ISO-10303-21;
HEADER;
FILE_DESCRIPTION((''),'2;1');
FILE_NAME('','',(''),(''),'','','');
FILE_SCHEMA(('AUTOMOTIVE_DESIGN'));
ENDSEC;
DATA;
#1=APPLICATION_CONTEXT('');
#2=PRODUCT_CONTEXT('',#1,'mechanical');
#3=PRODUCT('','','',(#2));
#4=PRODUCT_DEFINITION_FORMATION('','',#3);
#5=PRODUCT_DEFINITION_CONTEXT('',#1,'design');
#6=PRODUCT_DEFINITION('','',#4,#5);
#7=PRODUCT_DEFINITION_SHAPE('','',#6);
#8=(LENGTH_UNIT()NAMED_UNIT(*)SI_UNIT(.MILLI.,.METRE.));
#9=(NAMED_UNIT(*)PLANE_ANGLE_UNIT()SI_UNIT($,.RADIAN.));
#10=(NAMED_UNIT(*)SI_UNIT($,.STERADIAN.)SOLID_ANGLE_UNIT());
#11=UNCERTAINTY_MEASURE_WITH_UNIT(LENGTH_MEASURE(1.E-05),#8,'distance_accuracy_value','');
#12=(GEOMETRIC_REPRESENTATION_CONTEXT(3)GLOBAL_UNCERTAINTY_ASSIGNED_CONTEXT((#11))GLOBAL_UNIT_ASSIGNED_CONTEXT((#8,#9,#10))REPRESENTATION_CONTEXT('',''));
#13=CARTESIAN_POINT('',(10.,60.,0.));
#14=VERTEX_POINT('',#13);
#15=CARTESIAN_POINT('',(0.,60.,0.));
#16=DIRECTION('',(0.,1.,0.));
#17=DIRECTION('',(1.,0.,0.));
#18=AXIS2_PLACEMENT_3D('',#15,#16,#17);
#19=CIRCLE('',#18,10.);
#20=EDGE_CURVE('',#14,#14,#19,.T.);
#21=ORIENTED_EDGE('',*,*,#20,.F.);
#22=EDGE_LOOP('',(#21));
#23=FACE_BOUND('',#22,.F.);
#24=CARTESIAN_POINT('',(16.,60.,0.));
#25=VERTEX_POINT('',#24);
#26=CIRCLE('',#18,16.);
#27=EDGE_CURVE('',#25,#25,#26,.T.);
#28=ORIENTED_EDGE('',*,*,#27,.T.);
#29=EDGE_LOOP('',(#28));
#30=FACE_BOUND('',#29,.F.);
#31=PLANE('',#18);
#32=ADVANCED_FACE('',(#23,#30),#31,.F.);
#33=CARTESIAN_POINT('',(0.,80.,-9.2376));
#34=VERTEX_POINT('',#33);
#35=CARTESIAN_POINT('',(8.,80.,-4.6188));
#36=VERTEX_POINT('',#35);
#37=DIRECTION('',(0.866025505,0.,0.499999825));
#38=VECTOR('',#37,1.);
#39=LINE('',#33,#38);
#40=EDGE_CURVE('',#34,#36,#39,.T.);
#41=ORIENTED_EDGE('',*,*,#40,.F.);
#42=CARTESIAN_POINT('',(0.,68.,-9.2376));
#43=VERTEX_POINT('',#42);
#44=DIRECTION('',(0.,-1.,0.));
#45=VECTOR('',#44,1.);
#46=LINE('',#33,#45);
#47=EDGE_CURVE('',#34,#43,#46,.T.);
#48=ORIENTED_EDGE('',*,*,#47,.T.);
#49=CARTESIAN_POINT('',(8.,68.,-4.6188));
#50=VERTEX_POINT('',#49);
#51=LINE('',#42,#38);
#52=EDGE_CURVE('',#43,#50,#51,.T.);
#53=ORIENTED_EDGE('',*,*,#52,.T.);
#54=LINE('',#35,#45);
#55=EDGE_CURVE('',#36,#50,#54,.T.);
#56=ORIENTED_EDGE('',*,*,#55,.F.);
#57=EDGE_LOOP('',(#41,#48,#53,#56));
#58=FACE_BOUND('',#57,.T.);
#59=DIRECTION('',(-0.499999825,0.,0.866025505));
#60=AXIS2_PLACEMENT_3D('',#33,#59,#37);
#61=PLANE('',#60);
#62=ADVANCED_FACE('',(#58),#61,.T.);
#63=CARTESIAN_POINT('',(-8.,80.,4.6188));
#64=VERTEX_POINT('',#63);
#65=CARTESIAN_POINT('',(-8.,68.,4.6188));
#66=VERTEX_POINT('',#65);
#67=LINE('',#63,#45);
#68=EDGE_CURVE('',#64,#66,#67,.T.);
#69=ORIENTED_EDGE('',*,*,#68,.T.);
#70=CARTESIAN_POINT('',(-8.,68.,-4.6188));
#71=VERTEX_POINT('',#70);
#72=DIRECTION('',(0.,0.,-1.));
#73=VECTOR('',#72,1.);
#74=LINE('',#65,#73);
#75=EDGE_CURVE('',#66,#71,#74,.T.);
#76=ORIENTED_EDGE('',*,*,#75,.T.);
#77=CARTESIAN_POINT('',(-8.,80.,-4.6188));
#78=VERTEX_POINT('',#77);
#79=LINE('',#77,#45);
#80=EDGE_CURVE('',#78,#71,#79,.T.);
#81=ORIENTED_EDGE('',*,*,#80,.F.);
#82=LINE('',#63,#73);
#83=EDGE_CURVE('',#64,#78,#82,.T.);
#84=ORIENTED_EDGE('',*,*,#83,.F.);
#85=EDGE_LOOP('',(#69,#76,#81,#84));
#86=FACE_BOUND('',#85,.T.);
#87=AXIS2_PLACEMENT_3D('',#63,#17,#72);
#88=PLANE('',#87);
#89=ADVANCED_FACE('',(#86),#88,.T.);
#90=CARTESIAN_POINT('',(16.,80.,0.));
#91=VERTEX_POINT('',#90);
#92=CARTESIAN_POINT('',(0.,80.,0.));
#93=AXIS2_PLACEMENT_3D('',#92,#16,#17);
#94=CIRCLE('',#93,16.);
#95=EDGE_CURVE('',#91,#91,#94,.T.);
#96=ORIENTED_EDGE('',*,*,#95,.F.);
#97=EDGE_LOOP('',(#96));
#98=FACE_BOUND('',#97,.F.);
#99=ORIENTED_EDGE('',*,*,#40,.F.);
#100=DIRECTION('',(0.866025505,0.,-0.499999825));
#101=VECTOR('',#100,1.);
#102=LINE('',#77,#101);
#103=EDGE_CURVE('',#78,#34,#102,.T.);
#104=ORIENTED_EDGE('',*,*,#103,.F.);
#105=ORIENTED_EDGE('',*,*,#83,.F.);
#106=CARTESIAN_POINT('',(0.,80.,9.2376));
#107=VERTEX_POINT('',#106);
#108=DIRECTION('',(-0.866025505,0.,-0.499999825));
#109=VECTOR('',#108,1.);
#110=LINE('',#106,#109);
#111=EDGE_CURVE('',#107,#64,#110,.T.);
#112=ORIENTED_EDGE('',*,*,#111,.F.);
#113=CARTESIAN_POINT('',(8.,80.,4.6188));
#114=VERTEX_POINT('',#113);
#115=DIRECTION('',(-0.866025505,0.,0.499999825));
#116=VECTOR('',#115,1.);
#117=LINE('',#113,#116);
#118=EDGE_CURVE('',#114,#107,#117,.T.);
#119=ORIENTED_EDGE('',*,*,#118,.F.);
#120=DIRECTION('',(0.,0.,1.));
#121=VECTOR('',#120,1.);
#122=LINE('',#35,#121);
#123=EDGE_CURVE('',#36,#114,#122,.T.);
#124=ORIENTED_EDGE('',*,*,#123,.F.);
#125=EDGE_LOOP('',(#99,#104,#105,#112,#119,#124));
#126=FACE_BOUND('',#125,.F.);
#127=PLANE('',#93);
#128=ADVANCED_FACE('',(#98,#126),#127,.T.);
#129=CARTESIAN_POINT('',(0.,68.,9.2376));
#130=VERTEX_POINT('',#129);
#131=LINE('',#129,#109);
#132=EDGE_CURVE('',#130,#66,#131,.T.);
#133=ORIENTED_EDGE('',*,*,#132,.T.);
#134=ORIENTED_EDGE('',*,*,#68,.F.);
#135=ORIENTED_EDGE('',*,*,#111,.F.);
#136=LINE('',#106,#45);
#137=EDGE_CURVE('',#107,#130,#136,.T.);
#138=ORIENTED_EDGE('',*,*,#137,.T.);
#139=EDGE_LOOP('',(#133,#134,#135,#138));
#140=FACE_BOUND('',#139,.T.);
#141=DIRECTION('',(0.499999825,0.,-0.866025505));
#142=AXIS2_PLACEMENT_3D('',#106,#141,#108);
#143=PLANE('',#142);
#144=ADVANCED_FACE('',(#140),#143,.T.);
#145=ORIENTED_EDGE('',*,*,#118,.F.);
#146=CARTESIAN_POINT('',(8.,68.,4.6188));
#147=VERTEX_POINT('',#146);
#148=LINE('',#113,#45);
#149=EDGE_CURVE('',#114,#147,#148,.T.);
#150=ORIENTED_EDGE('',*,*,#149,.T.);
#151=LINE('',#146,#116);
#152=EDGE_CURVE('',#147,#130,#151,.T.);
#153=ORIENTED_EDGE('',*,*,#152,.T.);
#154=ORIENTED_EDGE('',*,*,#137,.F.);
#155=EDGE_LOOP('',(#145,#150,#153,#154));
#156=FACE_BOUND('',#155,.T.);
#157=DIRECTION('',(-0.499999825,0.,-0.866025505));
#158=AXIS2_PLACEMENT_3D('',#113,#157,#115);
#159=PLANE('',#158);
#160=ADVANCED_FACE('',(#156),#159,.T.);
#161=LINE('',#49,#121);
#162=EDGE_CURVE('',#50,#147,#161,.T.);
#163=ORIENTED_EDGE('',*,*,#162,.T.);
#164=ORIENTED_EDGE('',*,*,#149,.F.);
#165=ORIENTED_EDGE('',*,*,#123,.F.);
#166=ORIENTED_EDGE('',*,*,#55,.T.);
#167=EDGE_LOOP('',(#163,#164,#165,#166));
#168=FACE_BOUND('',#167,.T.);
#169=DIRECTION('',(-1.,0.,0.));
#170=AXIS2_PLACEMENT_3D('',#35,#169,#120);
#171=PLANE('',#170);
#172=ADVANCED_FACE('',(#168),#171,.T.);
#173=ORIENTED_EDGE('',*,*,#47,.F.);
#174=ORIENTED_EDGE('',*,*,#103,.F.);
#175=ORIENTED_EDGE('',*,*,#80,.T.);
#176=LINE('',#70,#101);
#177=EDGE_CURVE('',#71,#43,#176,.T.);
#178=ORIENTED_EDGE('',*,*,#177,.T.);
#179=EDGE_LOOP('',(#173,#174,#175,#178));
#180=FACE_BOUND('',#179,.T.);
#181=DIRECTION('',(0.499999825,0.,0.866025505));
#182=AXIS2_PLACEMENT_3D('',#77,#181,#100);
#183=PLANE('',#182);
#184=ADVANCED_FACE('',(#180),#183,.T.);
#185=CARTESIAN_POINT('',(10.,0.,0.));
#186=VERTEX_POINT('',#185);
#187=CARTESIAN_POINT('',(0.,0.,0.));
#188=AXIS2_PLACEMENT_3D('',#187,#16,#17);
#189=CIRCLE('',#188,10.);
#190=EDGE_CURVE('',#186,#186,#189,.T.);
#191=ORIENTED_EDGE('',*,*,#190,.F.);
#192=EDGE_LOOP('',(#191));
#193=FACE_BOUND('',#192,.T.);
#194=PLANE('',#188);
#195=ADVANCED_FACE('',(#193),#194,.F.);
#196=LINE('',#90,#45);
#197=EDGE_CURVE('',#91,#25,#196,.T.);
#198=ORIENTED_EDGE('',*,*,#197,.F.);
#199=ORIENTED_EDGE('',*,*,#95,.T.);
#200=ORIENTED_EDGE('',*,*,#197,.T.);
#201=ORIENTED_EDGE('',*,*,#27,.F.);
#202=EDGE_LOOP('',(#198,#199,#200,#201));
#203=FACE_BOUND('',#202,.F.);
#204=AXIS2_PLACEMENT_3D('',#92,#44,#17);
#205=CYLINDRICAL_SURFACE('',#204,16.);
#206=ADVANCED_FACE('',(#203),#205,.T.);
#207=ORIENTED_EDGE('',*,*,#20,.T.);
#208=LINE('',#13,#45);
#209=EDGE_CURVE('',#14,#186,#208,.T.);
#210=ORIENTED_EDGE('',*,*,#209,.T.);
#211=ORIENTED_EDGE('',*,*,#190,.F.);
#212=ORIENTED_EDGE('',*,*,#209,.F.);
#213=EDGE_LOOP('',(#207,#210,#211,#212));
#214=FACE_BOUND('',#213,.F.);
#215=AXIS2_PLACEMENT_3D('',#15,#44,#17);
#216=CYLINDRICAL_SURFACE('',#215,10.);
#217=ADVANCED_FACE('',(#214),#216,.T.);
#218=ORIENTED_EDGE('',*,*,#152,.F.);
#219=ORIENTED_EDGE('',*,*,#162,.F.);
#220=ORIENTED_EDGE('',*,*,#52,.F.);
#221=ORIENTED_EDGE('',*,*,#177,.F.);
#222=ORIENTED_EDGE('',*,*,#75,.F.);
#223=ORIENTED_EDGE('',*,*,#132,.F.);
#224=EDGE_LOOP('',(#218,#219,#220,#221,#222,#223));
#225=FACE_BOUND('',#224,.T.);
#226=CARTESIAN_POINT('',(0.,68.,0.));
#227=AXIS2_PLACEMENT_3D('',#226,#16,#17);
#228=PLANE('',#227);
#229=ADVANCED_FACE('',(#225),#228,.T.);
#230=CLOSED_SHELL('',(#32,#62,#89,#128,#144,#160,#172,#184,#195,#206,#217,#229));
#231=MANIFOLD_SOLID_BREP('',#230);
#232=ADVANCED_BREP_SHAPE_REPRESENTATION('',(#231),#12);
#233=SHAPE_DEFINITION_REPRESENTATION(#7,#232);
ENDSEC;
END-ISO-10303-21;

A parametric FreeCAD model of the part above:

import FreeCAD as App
import Part
import Sketcher
Q = App.Units.Quantity


def add_polygon(sketch, points):
    """Adds a closed chain of lines whose ends are joined by coincident constraints."""
    first, n = sketch.GeometryCount, len(points)
    for a, b in zip(points, points[1:] + points[:1]):
        sketch.addGeometry(Part.LineSegment(App.Vector(*a, 0), App.Vector(*b, 0)), False)
    for i in range(n):
        sketch.addConstraint(Sketcher.Constraint("Coincident", first + i, 2, first + (i + 1) % n, 1))

doc = App.newDocument("Part")
body = doc.addObject("PartDesign::Body", "Body")

# Sketch on XY plane
sketch1 = body.newObject("Sketcher::SketchObject", "Sketch")
sketch1.AttachmentSupport = (doc.getObject("XY_Plane"), [""])
sketch1.MapMode = "FlatFace"
add_polygon(sketch1, [(0, 80), (0, 0), (10, 0), (10, 60), (16, 60), (16, 80)])  # lines 0-5
sketch1.addConstraint([
    Sketcher.Constraint("Vertical", 0),
    Sketcher.Constraint("Horizontal", 1),
    Sketcher.Constraint("Vertical", 2),
    Sketcher.Constraint("Horizontal", 3),
    Sketcher.Constraint("Vertical", 4),
    Sketcher.Constraint("Horizontal", 5),
    Sketcher.Constraint("Coincident", 0, 2, -1, 1),
    Sketcher.Constraint("DistanceY", 2, 1, 2, 2, 60.0),
    Sketcher.Constraint("DistanceY", 4, 1, 4, 2, 20.0),
    Sketcher.Constraint("DistanceX", 1, 1, 1, 2, 10.0),
    Sketcher.Constraint("DistanceX", 3, 1, 3, 2, 6.0),
])
revolution = body.newObject("PartDesign::Revolution", "Revolution")
revolution.Profile = sketch1
revolution.ReferenceAxis = (sketch1, ["V_Axis"])
revolution.Angle = 360

# Sketch on XZ plane
sketch2 = body.newObject("Sketcher::SketchObject", "Sketch001")
sketch2.AttachmentSupport = (doc.getObject("XZ_Plane"), [""])
sketch2.MapMode = "FlatFace"
sketch2.AttachmentOffset = App.Placement(App.Vector(0, 0, -80), App.Rotation())
add_polygon(sketch2, [(8, -5), (0, -9), (-8, -5), (-8, 5), (0, 9), (8, 5)])  # lines 0-5
sketch2.addConstraint([
    Sketcher.Constraint("Vertical", 2),
    Sketcher.Constraint("Vertical", 5),
    Sketcher.Constraint("Symmetric", 0, 2, 3, 2, -1, 1),
    Sketcher.Constraint("Symmetric", 1, 2, 4, 2, -1, 1),
    Sketcher.Constraint("PointOnObject", 0, 2, -2),
    Sketcher.Constraint("Parallel", 0, 3),
    Sketcher.Constraint("Horizontal", 2, 2, 4, 2),
    Sketcher.Constraint("DistanceX", 2, 2, 4, 2, 16.0),
    Sketcher.Constraint("Angle", 0, Q("-150 deg")),
    Sketcher.Constraint("DistanceY", 2, 1, 2, 2, 9.2376),
])
pocket1 = body.newObject("PartDesign::Pocket", "Pocket")
pocket1.Profile = sketch2
pocket1.Length = 12
pocket1.Reversed = True

doc.recompute()
